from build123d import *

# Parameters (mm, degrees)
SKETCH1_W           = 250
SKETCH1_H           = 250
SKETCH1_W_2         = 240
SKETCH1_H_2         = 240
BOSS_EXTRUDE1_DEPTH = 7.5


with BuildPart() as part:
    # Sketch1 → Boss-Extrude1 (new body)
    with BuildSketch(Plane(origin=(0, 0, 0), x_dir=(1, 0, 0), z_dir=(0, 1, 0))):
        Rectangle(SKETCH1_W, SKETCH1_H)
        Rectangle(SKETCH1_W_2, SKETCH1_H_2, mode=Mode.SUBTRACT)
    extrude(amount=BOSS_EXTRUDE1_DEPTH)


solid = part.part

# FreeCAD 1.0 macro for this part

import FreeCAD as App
import Part
import Sketcher
from FreeCAD import Vector
Q = App.Units.Quantity

doc = App.newDocument("Part")
params = doc.addObject("Spreadsheet::Sheet", "Params")
for row, (alias, value) in enumerate([
    ("sketch1_width", "250 mm"),
    ("sketch1_width2", "240 mm"),
    ("pad1_length", "7.5 mm"),
], start=1):
    params.set(f"A{row}", alias)
    params.set(f"B{row}", "=" + value)
    params.setAlias(f"B{row}", alias)

body = doc.addObject("PartDesign::Body", "Body")

# Sketch on XZ plane
sketch1 = doc.addObject("Sketcher::SketchObject", "Sketch")
body.addObject(sketch1)
sketch1.AttachmentSupport = (doc.XZ_Plane, [""])
sketch1.MapMode = "FlatFace"
sketch1.addGeometry([
    Part.LineSegment(Vector(-125, -125, 0), Vector(-125, 125, 0)),  # 0
    Part.LineSegment(Vector(-125, 125, 0), Vector(125, 125, 0)),  # 1
    Part.LineSegment(Vector(125, 125, 0), Vector(125, -125, 0)),  # 2
    Part.LineSegment(Vector(125, -125, 0), Vector(-125, -125, 0)),  # 3
    Part.LineSegment(Vector(120, 120, 0), Vector(-120, 120, 0)),  # 4
    Part.LineSegment(Vector(-120, 120, 0), Vector(-120, -120, 0)),  # 5
    Part.LineSegment(Vector(-120, -120, 0), Vector(120, -120, 0)),  # 6
    Part.LineSegment(Vector(120, -120, 0), Vector(120, 120, 0)),  # 7
], False)
sketch1.addConstraint([
    Sketcher.Constraint("Coincident", 0, 2, 1, 1),
    Sketcher.Constraint("Coincident", 1, 2, 2, 1),
    Sketcher.Constraint("Coincident", 2, 2, 3, 1),
    Sketcher.Constraint("Coincident", 3, 2, 0, 1),
    Sketcher.Constraint("Coincident", 4, 2, 5, 1),
    Sketcher.Constraint("Coincident", 5, 2, 6, 1),
    Sketcher.Constraint("Coincident", 6, 2, 7, 1),
    Sketcher.Constraint("Coincident", 7, 2, 4, 1),
    Sketcher.Constraint("Vertical", 0),
    Sketcher.Constraint("Horizontal", 1),
    Sketcher.Constraint("Vertical", 2),
    Sketcher.Constraint("Horizontal", 3),
    Sketcher.Constraint("Horizontal", 4),
    Sketcher.Constraint("Vertical", 5),
    Sketcher.Constraint("Horizontal", 6),
    Sketcher.Constraint("Vertical", 7),
    Sketcher.Constraint("Symmetric", 0, 2, 2, 2, -1, 1),
    Sketcher.Constraint("Symmetric", 4, 2, 6, 2, -1, 1),
    Sketcher.Constraint("Equal", 3, 0),
    Sketcher.Constraint("Equal", 6, 5),
    Sketcher.Constraint("DistanceX", 1, 1, 1, 2, Q("250 mm")),
    Sketcher.Constraint("DistanceX", 4, 2, 4, 1, Q("240 mm")),
])
sketch1.setExpression("Constraints[20]", "Params.sketch1_width")
sketch1.setExpression("Constraints[21]", "Params.sketch1_width2")
pad1 = doc.addObject("PartDesign::Pad", "Pad")
body.addObject(pad1)
pad1.Profile = sketch1
pad1.setExpression("Length", "Params.pad1_length")
pad1.Reversed = True

doc.recompute()
